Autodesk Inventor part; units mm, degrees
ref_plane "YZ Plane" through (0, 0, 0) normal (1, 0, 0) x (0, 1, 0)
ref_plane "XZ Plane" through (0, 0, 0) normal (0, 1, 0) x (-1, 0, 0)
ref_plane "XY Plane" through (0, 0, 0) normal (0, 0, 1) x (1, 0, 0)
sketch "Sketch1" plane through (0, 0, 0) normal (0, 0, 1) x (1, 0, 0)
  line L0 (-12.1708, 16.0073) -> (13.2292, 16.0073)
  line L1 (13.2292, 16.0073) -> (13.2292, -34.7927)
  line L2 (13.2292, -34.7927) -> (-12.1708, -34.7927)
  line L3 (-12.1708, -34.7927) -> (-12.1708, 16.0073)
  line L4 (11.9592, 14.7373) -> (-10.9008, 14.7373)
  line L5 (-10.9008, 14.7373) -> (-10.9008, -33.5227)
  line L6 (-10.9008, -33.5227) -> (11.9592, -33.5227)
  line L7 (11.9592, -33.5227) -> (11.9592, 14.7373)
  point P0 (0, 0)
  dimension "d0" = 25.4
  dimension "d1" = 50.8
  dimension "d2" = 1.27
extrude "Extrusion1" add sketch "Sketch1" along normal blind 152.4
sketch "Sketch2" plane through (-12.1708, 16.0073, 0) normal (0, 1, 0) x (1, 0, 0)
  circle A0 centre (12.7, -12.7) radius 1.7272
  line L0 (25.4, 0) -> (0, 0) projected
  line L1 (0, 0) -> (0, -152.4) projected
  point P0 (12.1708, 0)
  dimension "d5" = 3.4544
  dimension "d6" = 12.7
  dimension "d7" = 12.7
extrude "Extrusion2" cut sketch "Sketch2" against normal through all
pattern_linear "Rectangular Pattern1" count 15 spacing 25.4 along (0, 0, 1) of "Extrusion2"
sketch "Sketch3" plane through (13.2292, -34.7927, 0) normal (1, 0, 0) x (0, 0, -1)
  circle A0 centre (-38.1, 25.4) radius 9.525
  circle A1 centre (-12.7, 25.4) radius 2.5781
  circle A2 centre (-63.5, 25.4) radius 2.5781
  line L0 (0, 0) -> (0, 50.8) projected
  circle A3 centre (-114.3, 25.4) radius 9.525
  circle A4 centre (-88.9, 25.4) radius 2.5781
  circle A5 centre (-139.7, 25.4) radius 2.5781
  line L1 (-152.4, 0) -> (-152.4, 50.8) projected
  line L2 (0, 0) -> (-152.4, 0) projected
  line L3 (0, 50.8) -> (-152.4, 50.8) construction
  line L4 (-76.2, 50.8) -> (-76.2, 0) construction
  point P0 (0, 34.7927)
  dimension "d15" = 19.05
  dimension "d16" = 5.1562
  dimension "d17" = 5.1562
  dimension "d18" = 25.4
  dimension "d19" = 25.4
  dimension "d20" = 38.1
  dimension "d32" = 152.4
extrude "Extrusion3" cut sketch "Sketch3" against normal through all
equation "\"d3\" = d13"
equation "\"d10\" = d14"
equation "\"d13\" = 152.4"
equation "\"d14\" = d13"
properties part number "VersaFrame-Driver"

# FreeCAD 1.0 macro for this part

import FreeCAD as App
import Part
import Sketcher
Q = App.Units.Quantity


def add_polygon(sketch, points):
    """Adds a closed chain of lines whose ends are joined by coincident constraints."""
    first, n = sketch.GeometryCount, len(points)
    for a, b in zip(points, points[1:] + points[:1]):
        sketch.addGeometry(Part.LineSegment(App.Vector(*a, 0), App.Vector(*b, 0)), False)
    for i in range(n):
        sketch.addConstraint(Sketcher.Constraint("Coincident", first + i, 2, first + (i + 1) % n, 1))

doc = App.newDocument("Part")
body = doc.addObject("PartDesign::Body", "Body")

sketch1 = doc.addObject("Sketcher::SketchObject", "Sketch")
body.addObject(sketch1)
sketch1.AttachmentSupport = (doc.XY_Plane, [""])
sketch1.MapMode = "FlatFace"
add_polygon(sketch1, [(13, 16), (-12, 16), (-12, -35), (13, -35)])
add_polygon(sketch1, [(-11, 15), (12, 15), (12, -34), (-11, -34)])
sketch1.addConstraint(Sketcher.Constraint("Horizontal", 0))
sketch1.addConstraint(Sketcher.Constraint("Vertical", 1))
sketch1.addConstraint(Sketcher.Constraint("Horizontal", 2))
sketch1.addConstraint(Sketcher.Constraint("Vertical", 3))
sketch1.addConstraint(Sketcher.Constraint("Horizontal", 4))
sketch1.addConstraint(Sketcher.Constraint("Vertical", 5))
sketch1.addConstraint(Sketcher.Constraint("Horizontal", 6))
sketch1.addConstraint(Sketcher.Constraint("Vertical", 7))
sketch1.addConstraint(Sketcher.Constraint("DistanceX", 0, 2, 0, 1, Q("1 in")))
sketch1.addConstraint(Sketcher.Constraint("DistanceY", 1, 2, 1, 1, Q("2 in")))
sketch1.addConstraint(Sketcher.Constraint("DistanceX", 4, 2, 3, 2, Q("0.05 in")))
sketch1.addConstraint(Sketcher.Constraint("DistanceY", 4, 2, 3, 2, Q("0.05 in")))
sketch1.addConstraint(Sketcher.Constraint("DistanceY", 2, 2, 5, 2, Q("0.05 in")))
sketch1.addConstraint(Sketcher.Constraint("DistanceX", 1, 2, 6, 2, Q("0.05 in")))
sketch1.addConstraint(Sketcher.Constraint("DistanceY", -1, 1, 0, 2, Q("0.6302 in")))
sketch1.addConstraint(Sketcher.Constraint("DistanceX", 0, 2, -1, 1, Q("12.1708 mm")))
pad1 = doc.addObject("PartDesign::Pad", "Pad")
body.addObject(pad1)
pad1.Profile = sketch1
pad1.Length = Q("6 in")

sketch2 = doc.addObject("Sketcher::SketchObject", "Sketch001")
body.addObject(sketch2)
sketch2.AttachmentSupport = (doc.XZ_Plane, [""])
sketch2.MapMode = "FlatFace"
sketch2.AttachmentOffset = App.Placement(App.Vector(0, 0, -0.6302087 * 25.4), App.Rotation())
sketch2.addGeometry(Part.Circle(App.Vector(0.5, 12.7, 0), App.Vector(0, 0, 1), 1.7), False)
sketch2.addConstraint(Sketcher.Constraint("Diameter", 0, Q("0.136 in")))
sketch2.addConstraint(Sketcher.Constraint("DistanceY", -1, 1, 0, 3, Q("0.5 in")))
sketch2.addConstraint(Sketcher.Constraint("DistanceX", -1, 1, 0, 3, Q("0.5292 mm")))
pocket1 = doc.addObject("PartDesign::Pocket", "Pocket")
body.addObject(pocket1)
pocket1.Profile = sketch2
pocket1.Type = "ThroughAll"
pocket1.Reversed = True
doc.recompute()

linearpattern = doc.addObject("PartDesign::LinearPattern", "LinearPattern")
body.addObject(linearpattern)
linearpattern.Originals = [pocket1]
linearpattern.Direction = (doc.Z_Axis, [""])
linearpattern.Mode = "offset"
linearpattern.Offset = Q("1 in")
linearpattern.Occurrences = 15
body.Tip = linearpattern

sketch3 = doc.addObject("Sketcher::SketchObject", "Sketch002")
body.addObject(sketch3)
sketch3.AttachmentSupport = (doc.YZ_Plane, [""])
sketch3.MapMode = "FlatFace"
sketch3.AttachmentOffset = App.Placement(App.Vector(0, 0, 13.2292), App.Rotation())
sketch3.addGeometry(Part.Circle(App.Vector(-9.4, 38.1, 0), App.Vector(0, 0, 1), 9.5), False)
sketch3.addGeometry(Part.Circle(App.Vector(-9.4, 12.7, 0), App.Vector(0, 0, 1), 2.6), False)
sketch3.addGeometry(Part.Circle(App.Vector(-9.4, 63.5, 0), App.Vector(0, 0, 1), 2.6), False)
sketch3.addGeometry(Part.Circle(App.Vector(-9.4, 114.3, 0), App.Vector(0, 0, 1), 9.5), False)
sketch3.addGeometry(Part.Circle(App.Vector(-9.4, 88.9, 0), App.Vector(0, 0, 1), 2.6), False)
sketch3.addGeometry(Part.Circle(App.Vector(-9.4, 139.7, 0), App.Vector(0, 0, 1), 2.6), False)
sketch3.addConstraint(Sketcher.Constraint("Equal", 1, 2))
sketch3.addConstraint(Sketcher.Constraint("Equal", 0, 3))
sketch3.addConstraint(Sketcher.Constraint("Equal", 2, 4))
sketch3.addConstraint(Sketcher.Constraint("Equal", 4, 5))
sketch3.addConstraint(Sketcher.Constraint("Vertical", 0, 3, 1, 3))
sketch3.addConstraint(Sketcher.Constraint("Vertical", 1, 3, 2, 3))
sketch3.addConstraint(Sketcher.Constraint("Vertical", 2, 3, 3, 3))
sketch3.addConstraint(Sketcher.Constraint("Vertical", 3, 3, 4, 3))
sketch3.addConstraint(Sketcher.Constraint("Vertical", 4, 3, 5, 3))
sketch3.addConstraint(Sketcher.Constraint("Diameter", 0, Q("0.75 in")))
sketch3.addConstraint(Sketcher.Constraint("Diameter", 1, Q("0.203 in")))
sketch3.addConstraint(Sketcher.Constraint("DistanceY", 1, 3, 0, 3, Q("1 in")))
sketch3.addConstraint(Sketcher.Constraint("DistanceY", 0, 3, 2, 3, Q("1 in")))
sketch3.addConstraint(Sketcher.Constraint("DistanceY", 4, 3, 3, 3, Q("1 in")))
sketch3.addConstraint(Sketcher.Constraint("DistanceY", 2, 3, 4, 3, Q("1 in")))
sketch3.addConstraint(Sketcher.Constraint("DistanceY", 3, 3, 5, 3, Q("1 in")))
sketch3.addConstraint(Sketcher.Constraint("DistanceY", -1, 1, 0, 3, Q("1.5 in")))
sketch3.addConstraint(Sketcher.Constraint("DistanceX", 0, 3, -1, 1, Q("0.3698 in")))
pocket2 = doc.addObject("PartDesign::Pocket", "Pocket001")
body.addObject(pocket2)
pocket2.Profile = sketch3
pocket2.Type = "ThroughAll"

doc.recompute()
